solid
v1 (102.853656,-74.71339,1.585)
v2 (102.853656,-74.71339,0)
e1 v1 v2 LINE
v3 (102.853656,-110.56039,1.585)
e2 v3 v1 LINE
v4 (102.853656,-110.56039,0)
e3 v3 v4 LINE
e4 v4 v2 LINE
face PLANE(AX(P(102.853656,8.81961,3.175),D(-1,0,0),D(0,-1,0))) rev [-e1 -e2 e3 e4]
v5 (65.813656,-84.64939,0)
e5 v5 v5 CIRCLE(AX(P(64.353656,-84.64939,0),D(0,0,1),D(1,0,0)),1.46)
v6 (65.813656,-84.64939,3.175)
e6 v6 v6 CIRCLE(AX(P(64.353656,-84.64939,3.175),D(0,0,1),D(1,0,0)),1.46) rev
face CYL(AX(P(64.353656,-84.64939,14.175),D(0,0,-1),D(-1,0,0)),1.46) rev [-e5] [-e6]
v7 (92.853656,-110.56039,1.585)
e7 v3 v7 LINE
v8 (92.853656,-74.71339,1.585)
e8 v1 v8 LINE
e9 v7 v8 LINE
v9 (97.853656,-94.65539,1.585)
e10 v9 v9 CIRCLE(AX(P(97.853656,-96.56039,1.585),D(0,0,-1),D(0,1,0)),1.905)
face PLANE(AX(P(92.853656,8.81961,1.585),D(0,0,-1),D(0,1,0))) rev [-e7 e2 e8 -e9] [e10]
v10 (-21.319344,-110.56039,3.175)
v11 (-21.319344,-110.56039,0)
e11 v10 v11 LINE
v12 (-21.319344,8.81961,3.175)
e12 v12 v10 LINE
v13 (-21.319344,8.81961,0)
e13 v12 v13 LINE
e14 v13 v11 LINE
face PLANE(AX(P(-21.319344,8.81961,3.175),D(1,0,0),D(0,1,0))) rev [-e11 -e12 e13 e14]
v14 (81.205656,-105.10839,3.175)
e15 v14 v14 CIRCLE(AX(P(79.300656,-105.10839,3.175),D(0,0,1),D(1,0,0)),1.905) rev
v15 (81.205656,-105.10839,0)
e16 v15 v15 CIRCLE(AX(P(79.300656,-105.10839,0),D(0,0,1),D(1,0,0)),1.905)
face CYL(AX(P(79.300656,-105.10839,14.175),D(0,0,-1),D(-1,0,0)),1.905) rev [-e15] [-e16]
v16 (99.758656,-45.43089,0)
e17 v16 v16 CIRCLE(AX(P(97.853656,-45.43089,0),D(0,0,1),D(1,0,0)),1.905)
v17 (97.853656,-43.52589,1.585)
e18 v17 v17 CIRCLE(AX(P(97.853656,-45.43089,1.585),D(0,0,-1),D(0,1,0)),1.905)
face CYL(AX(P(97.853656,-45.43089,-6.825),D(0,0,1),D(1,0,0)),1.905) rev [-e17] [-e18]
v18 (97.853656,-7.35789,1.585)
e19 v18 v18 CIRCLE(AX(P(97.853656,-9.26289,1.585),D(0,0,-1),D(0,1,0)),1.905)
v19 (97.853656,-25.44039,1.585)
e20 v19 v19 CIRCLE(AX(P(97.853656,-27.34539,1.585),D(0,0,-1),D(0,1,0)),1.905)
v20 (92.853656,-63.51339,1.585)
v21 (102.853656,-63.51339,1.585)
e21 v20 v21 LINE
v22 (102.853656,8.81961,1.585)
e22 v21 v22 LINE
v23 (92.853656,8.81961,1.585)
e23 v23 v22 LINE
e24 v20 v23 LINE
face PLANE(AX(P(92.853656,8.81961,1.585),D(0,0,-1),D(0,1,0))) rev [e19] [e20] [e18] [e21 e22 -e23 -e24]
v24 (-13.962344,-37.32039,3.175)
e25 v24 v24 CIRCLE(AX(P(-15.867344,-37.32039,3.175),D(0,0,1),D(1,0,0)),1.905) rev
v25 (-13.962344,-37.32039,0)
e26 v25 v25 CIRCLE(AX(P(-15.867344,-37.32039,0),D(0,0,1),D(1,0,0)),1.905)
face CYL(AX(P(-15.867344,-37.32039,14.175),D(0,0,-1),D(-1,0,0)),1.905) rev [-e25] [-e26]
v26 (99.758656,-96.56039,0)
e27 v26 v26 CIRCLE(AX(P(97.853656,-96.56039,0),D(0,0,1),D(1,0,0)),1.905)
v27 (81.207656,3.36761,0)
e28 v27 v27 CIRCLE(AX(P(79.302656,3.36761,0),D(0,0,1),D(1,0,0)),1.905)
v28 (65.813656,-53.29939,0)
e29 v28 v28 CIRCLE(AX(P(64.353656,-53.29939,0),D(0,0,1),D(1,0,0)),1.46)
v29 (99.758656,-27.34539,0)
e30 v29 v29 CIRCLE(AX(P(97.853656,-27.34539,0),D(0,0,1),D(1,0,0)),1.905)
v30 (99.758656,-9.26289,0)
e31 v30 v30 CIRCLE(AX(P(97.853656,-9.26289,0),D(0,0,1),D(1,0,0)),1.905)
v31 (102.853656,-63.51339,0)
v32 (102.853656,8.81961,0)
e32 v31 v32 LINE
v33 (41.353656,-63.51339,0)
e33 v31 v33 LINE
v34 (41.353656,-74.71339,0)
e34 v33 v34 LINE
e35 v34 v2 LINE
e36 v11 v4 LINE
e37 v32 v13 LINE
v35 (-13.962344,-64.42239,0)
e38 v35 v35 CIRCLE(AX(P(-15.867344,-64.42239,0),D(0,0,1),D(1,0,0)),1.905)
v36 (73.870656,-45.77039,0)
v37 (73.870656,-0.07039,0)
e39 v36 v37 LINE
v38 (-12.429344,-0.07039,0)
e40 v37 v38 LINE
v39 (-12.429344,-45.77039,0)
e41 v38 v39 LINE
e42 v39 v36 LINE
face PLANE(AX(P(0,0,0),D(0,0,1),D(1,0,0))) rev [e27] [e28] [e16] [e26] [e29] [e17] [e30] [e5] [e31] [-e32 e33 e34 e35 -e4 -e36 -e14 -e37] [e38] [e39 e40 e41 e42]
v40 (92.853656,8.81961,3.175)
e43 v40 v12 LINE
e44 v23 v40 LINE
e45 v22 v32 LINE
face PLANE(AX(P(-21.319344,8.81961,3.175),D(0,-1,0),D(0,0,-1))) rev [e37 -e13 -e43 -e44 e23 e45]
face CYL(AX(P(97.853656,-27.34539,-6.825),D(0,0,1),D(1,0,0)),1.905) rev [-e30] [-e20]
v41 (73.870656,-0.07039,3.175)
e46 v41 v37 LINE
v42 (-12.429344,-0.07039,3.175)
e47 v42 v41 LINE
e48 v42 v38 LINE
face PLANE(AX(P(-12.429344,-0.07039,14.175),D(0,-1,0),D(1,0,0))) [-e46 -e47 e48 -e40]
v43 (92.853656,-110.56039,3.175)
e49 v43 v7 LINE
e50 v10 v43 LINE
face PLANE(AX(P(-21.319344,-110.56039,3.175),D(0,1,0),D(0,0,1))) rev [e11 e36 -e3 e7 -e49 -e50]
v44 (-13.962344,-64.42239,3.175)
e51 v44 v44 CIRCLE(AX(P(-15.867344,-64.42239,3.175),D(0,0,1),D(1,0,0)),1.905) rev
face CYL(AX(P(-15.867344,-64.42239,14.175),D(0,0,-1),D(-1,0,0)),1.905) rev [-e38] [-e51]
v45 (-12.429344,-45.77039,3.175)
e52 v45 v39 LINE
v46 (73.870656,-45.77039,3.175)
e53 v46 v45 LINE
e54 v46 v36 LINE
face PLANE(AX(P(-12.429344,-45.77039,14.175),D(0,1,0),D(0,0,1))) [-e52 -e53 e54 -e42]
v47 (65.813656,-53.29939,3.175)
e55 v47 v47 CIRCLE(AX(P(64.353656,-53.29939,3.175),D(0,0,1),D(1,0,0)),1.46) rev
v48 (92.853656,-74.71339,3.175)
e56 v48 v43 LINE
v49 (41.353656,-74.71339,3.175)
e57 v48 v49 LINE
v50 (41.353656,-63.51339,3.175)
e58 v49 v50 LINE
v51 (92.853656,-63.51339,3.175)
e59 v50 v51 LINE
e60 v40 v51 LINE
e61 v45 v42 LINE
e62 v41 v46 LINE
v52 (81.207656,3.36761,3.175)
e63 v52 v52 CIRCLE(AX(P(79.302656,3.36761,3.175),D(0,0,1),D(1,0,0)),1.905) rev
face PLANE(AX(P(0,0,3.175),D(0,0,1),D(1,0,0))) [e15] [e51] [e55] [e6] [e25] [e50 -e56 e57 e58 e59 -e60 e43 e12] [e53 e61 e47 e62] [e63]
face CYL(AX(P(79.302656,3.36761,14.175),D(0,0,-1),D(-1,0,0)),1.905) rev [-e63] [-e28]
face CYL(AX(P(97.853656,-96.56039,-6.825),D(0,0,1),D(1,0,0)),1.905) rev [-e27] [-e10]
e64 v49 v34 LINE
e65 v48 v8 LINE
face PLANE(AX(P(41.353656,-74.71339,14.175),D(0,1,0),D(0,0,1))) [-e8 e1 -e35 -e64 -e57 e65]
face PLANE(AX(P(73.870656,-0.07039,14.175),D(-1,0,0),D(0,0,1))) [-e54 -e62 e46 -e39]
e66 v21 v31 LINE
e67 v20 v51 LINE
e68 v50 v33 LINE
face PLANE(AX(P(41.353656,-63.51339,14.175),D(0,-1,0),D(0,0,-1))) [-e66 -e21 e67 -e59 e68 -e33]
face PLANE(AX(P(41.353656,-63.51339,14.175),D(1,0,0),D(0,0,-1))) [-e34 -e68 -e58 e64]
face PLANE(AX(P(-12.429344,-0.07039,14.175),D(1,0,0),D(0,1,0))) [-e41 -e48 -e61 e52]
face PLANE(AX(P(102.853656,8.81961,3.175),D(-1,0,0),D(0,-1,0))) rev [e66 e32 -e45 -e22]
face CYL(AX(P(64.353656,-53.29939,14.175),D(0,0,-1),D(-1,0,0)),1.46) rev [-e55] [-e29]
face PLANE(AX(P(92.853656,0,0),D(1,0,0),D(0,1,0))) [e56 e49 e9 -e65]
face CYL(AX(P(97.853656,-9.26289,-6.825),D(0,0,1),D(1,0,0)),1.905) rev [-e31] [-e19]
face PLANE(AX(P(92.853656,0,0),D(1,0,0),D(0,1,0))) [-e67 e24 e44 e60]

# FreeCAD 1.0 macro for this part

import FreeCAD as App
import Part
import Sketcher
Q = App.Units.Quantity

doc = App.newDocument("Part")
params = doc.addObject("Spreadsheet::Sheet", "Params")
for row, (alias, value) in enumerate([
    ("sketch1_height", "119.38 mm"),
    ("pad1_length", "3.175 mm"),
    ("sketch2_diameter", "3.81 mm"),
    ("sketch2_diameter2", "2.92 mm"),
    ("sketch2_width", "86.3 mm"),
    ("sketch2_width2", "61.5 mm"),
    ("sketch2_height", "45.7 mm"),
    ("pocket1_length", "14.175 mm"),
    ("sketch3_width", "120 mm"),
    ("sketch3_height", "1.59 mm"),
    ("pocket2_length", "10 mm"),
    ("sketch4_diameter", "3.81 mm"),
    ("pocket3_length", "10 mm"),
], start=1):
    params.set(f"A{row}", alias)
    params.set(f"B{row}", "=" + value)
    params.setAlias(f"B{row}", alias)

body = doc.addObject("PartDesign::Body", "Body")

# Sketch on XY plane
sketch1 = body.newObject("Sketcher::SketchObject", "Sketch")
sketch1.AttachmentSupport = (doc.getObject("XY_Plane"), [""])
sketch1.MapMode = "FlatFace"
sketch1.addGeometry([
    Part.LineSegment(App.Vector(-21, 9, 0), App.Vector(-21, -111, 0)),
    Part.LineSegment(App.Vector(-21, -111, 0), App.Vector(103, -111, 0)),
    Part.LineSegment(App.Vector(103, -111, 0), App.Vector(103, 9, 0)),
    Part.LineSegment(App.Vector(103, 9, 0), App.Vector(-21, 9, 0)),
], False)
sketch1.addConstraint([
    Sketcher.Constraint("Coincident", 0, 2, 1, 1),
    Sketcher.Constraint("Coincident", 1, 2, 2, 1),
    Sketcher.Constraint("Coincident", 2, 2, 3, 1),
    Sketcher.Constraint("Coincident", 3, 2, 0, 1),
    Sketcher.Constraint("Vertical", 0),
    Sketcher.Constraint("Horizontal", 1),
    Sketcher.Constraint("Vertical", 2),
    Sketcher.Constraint("Horizontal", 3),
    Sketcher.Constraint("DistanceY", 0, 2, 0, 1, Q("119.38 mm")),
    Sketcher.Constraint("DistanceX", 1, 1, 1, 2, Q("124.173 mm")),
    Sketcher.Constraint("DistanceY", 0, 2, -1, 1, Q("110.56039 mm")),
    Sketcher.Constraint("DistanceX", 0, 2, -1, 1, Q("21.319344 mm")),
])
sketch1.setExpression("Constraints[8]", "Params.sketch1_height")
pad1 = body.newObject("PartDesign::Pad", "Pad")
pad1.Profile = sketch1
pad1.setExpression("Length", "Params.pad1_length")

# Sketch on XY plane
sketch2 = body.newObject("Sketcher::SketchObject", "Sketch001")
sketch2.AttachmentSupport = (doc.getObject("XY_Plane"), [""])
sketch2.MapMode = "FlatFace"
sketch2.addGeometry([
    Part.Circle(App.Vector(-15.9, -37.3, 0), App.Vector(0, 0, 1), 1.9),  # 0
    Part.Circle(App.Vector(-15.9, -64.4, 0), App.Vector(0, 0, 1), 1.9),  # 1
    Part.Circle(App.Vector(79.3, 3.4, 0), App.Vector(0, 0, 1), 1.9),  # 2
    Part.Circle(App.Vector(79.3, -105.1, 0), App.Vector(0, 0, 1), 1.9),  # 3
    Part.Circle(App.Vector(64.4, -53.3, 0), App.Vector(0, 0, 1), 1.5),  # 4
    Part.Circle(App.Vector(64.4, -84.6, 0), App.Vector(0, 0, 1), 1.5),  # 5
    Part.LineSegment(App.Vector(-12.4, -0.1, 0), App.Vector(-12.4, -45.8, 0)),  # 6
    Part.LineSegment(App.Vector(-12.4, -45.8, 0), App.Vector(73.9, -45.8, 0)),  # 7
    Part.LineSegment(App.Vector(73.9, -45.8, 0), App.Vector(73.9, -0.1, 0)),  # 8
    Part.LineSegment(App.Vector(73.9, -0.1, 0), App.Vector(-12.4, -0.1, 0)),  # 9
    Part.LineSegment(App.Vector(41.4, -63.5, 0), App.Vector(41.4, -74.7, 0)),  # 10
    Part.LineSegment(App.Vector(41.4, -74.7, 0), App.Vector(102.9, -74.7, 0)),  # 11
    Part.LineSegment(App.Vector(102.9, -74.7, 0), App.Vector(102.9, -63.5, 0)),  # 12
    Part.LineSegment(App.Vector(102.9, -63.5, 0), App.Vector(41.4, -63.5, 0)),  # 13
], False)
sketch2.addConstraint([
    Sketcher.Constraint("Coincident", 6, 2, 7, 1),
    Sketcher.Constraint("Coincident", 7, 2, 8, 1),
    Sketcher.Constraint("Coincident", 8, 2, 9, 1),
    Sketcher.Constraint("Coincident", 9, 2, 6, 1),
    Sketcher.Constraint("Coincident", 10, 2, 11, 1),
    Sketcher.Constraint("Coincident", 11, 2, 12, 1),
    Sketcher.Constraint("Coincident", 12, 2, 13, 1),
    Sketcher.Constraint("Coincident", 13, 2, 10, 1),
    Sketcher.Constraint("Vertical", 6),
    Sketcher.Constraint("Horizontal", 7),
    Sketcher.Constraint("Vertical", 8),
    Sketcher.Constraint("Horizontal", 9),
    Sketcher.Constraint("Vertical", 10),
    Sketcher.Constraint("Horizontal", 11),
    Sketcher.Constraint("Vertical", 12),
    Sketcher.Constraint("Horizontal", 13),
    Sketcher.Constraint("Equal", 0, 1),
    Sketcher.Constraint("Equal", 1, 2),
    Sketcher.Constraint("Equal", 2, 3),
    Sketcher.Constraint("Equal", 4, 5),
    Sketcher.Constraint("Vertical", 0, 3, 1, 3),
    Sketcher.Constraint("Vertical", 4, 3, 5, 3),
    Sketcher.Constraint("Diameter", 0, Q("3.81 mm")),
    Sketcher.Constraint("Diameter", 4, Q("2.92 mm")),
    Sketcher.Constraint("DistanceX", 7, 1, 7, 2, Q("86.3 mm")),
    Sketcher.Constraint("DistanceX", 11, 1, 11, 2, Q("61.5 mm")),
    Sketcher.Constraint("DistanceY", 6, 2, 6, 1, Q("45.7 mm")),
    Sketcher.Constraint("DistanceY", 10, 2, 10, 1, Q("11.2 mm")),
    Sketcher.Constraint("DistanceX", 10, 2, 5, 3, Q("23 mm")),
    Sketcher.Constraint("DistanceX", 0, 3, 2, 3, Q("95.17 mm")),
    Sketcher.Constraint("DistanceY", 1, 3, 2, 3, Q("67.79 mm")),
    Sketcher.Constraint("DistanceY", 5, 3, 4, 3, Q("31.35 mm")),
    Sketcher.Constraint("DistanceY", 6, 2, 0, 3, Q("8.45 mm")),
    Sketcher.Constraint("DistanceX", 7, 2, 3, 3, Q("5.43 mm")),
    Sketcher.Constraint("DistanceY", 1, 3, 0, 3, Q("27.102 mm")),
    Sketcher.Constraint("DistanceX", 1, 3, 3, 3, Q("95.168 mm")),
    Sketcher.Constraint("DistanceY", 3, 3, 1, 3, Q("40.686 mm")),
    Sketcher.Constraint("DistanceX", 4, 3, 3, 3, Q("14.947 mm")),
    Sketcher.Constraint("DistanceY", 3, 3, 4, 3, Q("51.809 mm")),
    Sketcher.Constraint("DistanceY", 5, 3, 10, 2, Q("9.936 mm")),
    Sketcher.Constraint("DistanceY", 0, 3, -1, 1, Q("37.32039 mm")),
    Sketcher.Constraint("DistanceX", 0, 3, -1, 1, Q("15.867344 mm")),
])
sketch2.setExpression("Constraints[22]", "Params.sketch2_diameter")
sketch2.setExpression("Constraints[23]", "Params.sketch2_diameter2")
sketch2.setExpression("Constraints[24]", "Params.sketch2_width")
sketch2.setExpression("Constraints[25]", "Params.sketch2_width2")
sketch2.setExpression("Constraints[26]", "Params.sketch2_height")
pocket1 = body.newObject("PartDesign::Pocket", "Pocket")
pocket1.Profile = sketch2
pocket1.setExpression("Length", "Params.pocket1_length")
pocket1.Reversed = True

# Sketch on YZ plane
sketch3 = body.newObject("Sketcher::SketchObject", "Sketch002")
sketch3.AttachmentSupport = (doc.getObject("YZ_Plane"), [""])
sketch3.MapMode = "FlatFace"
sketch3.AttachmentOffset = App.Placement(App.Vector(0, 0, 102.853656), App.Rotation())
sketch3.addGeometry([
    Part.LineSegment(App.Vector(8.8, 3.2, 0), App.Vector(-111.2, 3.2, 0)),
    Part.LineSegment(App.Vector(-111.2, 3.2, 0), App.Vector(-111.2, 1.6, 0)),
    Part.LineSegment(App.Vector(-111.2, 1.6, 0), App.Vector(8.8, 1.6, 0)),
    Part.LineSegment(App.Vector(8.8, 1.6, 0), App.Vector(8.8, 3.2, 0)),
], False)
sketch3.addConstraint([
    Sketcher.Constraint("Coincident", 0, 2, 1, 1),
    Sketcher.Constraint("Coincident", 1, 2, 2, 1),
    Sketcher.Constraint("Coincident", 2, 2, 3, 1),
    Sketcher.Constraint("Coincident", 3, 2, 0, 1),
    Sketcher.Constraint("Horizontal", 0),
    Sketcher.Constraint("Vertical", 1),
    Sketcher.Constraint("Horizontal", 2),
    Sketcher.Constraint("Vertical", 3),
    Sketcher.Constraint("DistanceX", 0, 2, 0, 1, Q("120 mm")),
    Sketcher.Constraint("DistanceY", 1, 2, 1, 1, Q("1.59 mm")),
    Sketcher.Constraint("DistanceY", -1, 1, 0, 2, Q("3.175 mm")),
    Sketcher.Constraint("DistanceX", 0, 2, -1, 1, Q("111.18039 mm")),
])
sketch3.setExpression("Constraints[8]", "Params.sketch3_width")
sketch3.setExpression("Constraints[9]", "Params.sketch3_height")
pocket2 = body.newObject("PartDesign::Pocket", "Pocket001")
pocket2.Profile = sketch3
pocket2.setExpression("Length", "Params.pocket2_length")

# Sketch on XY plane
sketch4 = body.newObject("Sketcher::SketchObject", "Sketch003")
sketch4.AttachmentSupport = (doc.getObject("XY_Plane"), [""])
sketch4.MapMode = "FlatFace"
sketch4.AttachmentOffset = App.Placement(App.Vector(0, 0, 3.175), App.Rotation())
sketch4.addGeometry([
    Part.Circle(App.Vector(97.9, -9.3, 0), App.Vector(0, 0, 1), 1.9),
    Part.Circle(App.Vector(97.9, -27.3, 0), App.Vector(0, 0, 1), 1.9),
    Part.Circle(App.Vector(97.9, -45.4, 0), App.Vector(0, 0, 1), 1.9),
    Part.Circle(App.Vector(97.9, -96.6, 0), App.Vector(0, 0, 1), 1.9),
], False)
sketch4.addConstraint([
    Sketcher.Constraint("Equal", 0, 1),
    Sketcher.Constraint("Equal", 1, 2),
    Sketcher.Constraint("Equal", 2, 3),
    Sketcher.Constraint("Vertical", 0, 3, 1, 3),
    Sketcher.Constraint("Vertical", 1, 3, 2, 3),
    Sketcher.Constraint("Vertical", 2, 3, 3, 3),
    Sketcher.Constraint("Diameter", 0, Q("3.81 mm")),
    Sketcher.Constraint("DistanceY", 2, 3, 0, 3, Q("36.168001 mm")),
    Sketcher.Constraint("DistanceY", 3, 3, 1, 3, Q("69.215001 mm")),
    Sketcher.Constraint("DistanceY", 1, 3, 0, 3, Q("18.0825 mm")),
    Sketcher.Constraint("DistanceY", 0, 3, -1, 1, Q("9.26289 mm")),
    Sketcher.Constraint("DistanceX", -1, 1, 0, 3, Q("97.853656 mm")),
])
sketch4.setExpression("Constraints[6]", "Params.sketch4_diameter")
pocket3 = body.newObject("PartDesign::Pocket", "Pocket002")
pocket3.Profile = sketch4
pocket3.setExpression("Length", "Params.pocket3_length")

doc.recompute()
